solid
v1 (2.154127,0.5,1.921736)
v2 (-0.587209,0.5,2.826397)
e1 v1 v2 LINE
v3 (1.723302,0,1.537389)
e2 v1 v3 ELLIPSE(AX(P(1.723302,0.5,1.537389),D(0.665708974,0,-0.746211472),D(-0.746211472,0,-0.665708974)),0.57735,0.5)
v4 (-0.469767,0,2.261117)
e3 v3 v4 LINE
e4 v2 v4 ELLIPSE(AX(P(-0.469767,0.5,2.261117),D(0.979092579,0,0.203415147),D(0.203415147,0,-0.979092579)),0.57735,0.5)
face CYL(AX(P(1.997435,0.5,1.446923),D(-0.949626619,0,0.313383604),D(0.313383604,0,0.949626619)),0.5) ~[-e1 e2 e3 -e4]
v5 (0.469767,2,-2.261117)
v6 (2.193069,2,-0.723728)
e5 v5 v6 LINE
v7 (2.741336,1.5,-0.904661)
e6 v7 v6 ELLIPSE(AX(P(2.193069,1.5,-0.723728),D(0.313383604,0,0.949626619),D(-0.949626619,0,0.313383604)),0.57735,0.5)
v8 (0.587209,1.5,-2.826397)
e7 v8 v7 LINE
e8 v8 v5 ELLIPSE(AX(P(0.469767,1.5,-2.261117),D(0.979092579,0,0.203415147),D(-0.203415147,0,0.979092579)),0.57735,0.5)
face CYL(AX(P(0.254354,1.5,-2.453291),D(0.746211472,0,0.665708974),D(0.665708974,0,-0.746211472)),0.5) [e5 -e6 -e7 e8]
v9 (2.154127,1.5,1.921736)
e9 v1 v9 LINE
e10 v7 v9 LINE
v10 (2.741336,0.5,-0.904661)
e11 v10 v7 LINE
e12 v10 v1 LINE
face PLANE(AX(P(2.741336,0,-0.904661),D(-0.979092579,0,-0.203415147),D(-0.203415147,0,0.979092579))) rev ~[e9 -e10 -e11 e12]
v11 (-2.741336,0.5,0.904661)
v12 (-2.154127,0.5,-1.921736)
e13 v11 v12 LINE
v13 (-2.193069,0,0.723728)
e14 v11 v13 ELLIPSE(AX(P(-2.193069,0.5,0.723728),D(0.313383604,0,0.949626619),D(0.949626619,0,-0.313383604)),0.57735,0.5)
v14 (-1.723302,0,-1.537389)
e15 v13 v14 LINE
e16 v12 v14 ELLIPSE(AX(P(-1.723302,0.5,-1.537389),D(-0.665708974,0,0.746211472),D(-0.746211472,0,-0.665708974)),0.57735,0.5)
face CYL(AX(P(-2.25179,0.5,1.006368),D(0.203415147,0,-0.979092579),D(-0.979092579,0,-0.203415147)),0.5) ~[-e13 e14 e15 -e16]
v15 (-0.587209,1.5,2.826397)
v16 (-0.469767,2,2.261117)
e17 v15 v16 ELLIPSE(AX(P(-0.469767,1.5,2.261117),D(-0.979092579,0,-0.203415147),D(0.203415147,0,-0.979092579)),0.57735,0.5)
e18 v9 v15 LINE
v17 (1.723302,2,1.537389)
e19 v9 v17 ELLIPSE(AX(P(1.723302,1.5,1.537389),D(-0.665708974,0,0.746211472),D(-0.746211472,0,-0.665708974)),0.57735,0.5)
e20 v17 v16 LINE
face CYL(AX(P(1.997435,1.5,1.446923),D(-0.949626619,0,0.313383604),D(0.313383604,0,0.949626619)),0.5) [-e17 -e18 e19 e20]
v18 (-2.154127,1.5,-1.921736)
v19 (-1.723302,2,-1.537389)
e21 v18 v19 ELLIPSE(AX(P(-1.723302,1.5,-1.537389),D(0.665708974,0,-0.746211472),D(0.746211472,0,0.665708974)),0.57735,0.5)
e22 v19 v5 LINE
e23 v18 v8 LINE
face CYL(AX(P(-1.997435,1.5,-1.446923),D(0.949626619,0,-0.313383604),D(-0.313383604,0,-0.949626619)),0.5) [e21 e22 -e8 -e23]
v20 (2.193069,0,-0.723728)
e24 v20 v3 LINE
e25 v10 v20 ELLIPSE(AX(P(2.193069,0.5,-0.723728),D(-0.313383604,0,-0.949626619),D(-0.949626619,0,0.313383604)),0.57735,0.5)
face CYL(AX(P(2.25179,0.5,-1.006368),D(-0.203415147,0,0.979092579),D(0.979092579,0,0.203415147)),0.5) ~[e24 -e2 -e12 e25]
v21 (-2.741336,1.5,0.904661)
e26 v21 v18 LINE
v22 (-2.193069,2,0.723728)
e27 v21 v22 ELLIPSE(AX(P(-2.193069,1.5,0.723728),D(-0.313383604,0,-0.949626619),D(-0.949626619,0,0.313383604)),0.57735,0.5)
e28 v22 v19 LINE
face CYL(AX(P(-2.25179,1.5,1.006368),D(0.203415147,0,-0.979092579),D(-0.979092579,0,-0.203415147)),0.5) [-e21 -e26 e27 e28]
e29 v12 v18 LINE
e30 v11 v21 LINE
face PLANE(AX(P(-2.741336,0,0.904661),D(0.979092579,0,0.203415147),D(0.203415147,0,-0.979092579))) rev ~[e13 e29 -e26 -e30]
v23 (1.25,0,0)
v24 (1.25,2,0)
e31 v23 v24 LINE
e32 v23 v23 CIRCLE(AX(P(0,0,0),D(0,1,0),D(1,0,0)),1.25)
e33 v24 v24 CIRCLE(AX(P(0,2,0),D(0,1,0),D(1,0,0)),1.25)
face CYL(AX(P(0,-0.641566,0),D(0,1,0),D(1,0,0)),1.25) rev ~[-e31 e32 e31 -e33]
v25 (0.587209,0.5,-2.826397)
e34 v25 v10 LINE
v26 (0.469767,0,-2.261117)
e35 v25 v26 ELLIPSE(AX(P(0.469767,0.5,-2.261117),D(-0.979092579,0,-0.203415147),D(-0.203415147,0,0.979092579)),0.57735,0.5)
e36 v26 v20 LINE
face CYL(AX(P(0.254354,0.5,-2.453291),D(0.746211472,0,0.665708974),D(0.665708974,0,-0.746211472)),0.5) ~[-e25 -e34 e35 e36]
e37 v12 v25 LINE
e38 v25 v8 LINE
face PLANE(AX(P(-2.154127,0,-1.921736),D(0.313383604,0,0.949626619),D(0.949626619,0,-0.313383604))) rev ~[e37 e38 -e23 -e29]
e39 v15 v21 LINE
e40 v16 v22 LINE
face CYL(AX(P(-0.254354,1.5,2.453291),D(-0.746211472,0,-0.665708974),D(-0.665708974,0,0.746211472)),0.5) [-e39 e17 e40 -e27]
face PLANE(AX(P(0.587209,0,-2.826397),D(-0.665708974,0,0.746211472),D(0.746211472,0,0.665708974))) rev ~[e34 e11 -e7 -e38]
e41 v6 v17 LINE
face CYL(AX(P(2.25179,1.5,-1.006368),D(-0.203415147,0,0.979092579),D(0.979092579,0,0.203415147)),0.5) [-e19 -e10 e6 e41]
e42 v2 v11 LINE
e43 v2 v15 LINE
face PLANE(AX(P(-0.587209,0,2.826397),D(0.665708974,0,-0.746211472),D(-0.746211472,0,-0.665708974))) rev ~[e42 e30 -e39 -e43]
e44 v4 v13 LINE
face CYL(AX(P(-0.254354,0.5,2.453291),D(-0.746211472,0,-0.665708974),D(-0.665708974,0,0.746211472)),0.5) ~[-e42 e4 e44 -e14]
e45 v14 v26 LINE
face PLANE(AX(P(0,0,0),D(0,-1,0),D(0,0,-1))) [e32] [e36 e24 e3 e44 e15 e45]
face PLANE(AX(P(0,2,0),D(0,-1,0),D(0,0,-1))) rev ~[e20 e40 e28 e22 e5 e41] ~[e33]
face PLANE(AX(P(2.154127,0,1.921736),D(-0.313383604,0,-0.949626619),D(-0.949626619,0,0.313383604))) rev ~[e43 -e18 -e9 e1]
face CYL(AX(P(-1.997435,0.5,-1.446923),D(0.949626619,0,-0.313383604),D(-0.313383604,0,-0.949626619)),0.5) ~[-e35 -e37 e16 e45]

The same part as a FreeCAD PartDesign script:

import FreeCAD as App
import Part
import Sketcher
from FreeCAD import Vector


def edges_at(feature, points):
    """Names of the edges that pass closest to the given points."""
    edges = feature.Shape.Edges
    near = lambda p: min(range(len(edges)), key=lambda i: edges[i].distToShape(Part.Vertex(*p))[0])
    return sorted({f"Edge{near(p) + 1}" for p in points})


def add_polygon(sketch, points):
    """Adds a closed chain of lines whose ends are joined by coincident constraints."""
    first, n = sketch.GeometryCount, len(points)
    for a, b in zip(points, points[1:] + points[:1]):
        sketch.addGeometry(Part.LineSegment(App.Vector(*a, 0), App.Vector(*b, 0)), False)
    for i in range(n):
        sketch.addConstraint(Sketcher.Constraint("Coincident", first + i, 2, first + (i + 1) % n, 1))

doc = App.newDocument("Part")
params = doc.addObject("Spreadsheet::Sheet", "Params")
for row, (alias, value) in enumerate([
    ("sketch2_height", "2 mm"),
    ("fillet_radius", "0.5 mm"),
    ("sketch3_diameter", "2.5 mm"),
], start=1):
    params.set(f"A{row}", alias)
    params.set(f"B{row}", "=" + value)
    params.setAlias(f"B{row}", alias)

body = doc.addObject("PartDesign::Body", "Body")

sketch1 = body.newObject("Sketcher::SketchObject", "Sketch")
sketch1.AttachmentSupport = (doc.getObject("XZ_Plane"), [""])
sketch1.MapMode = "FlatFace"
add_polygon(sketch1, [(-0.6, 2.8), (-2.7, 0.9), (-2.2, -1.9), (0.6, -2.8), (2.7, -0.9), (2.2, 1.9)])
sketch1.addConstraint([
    Sketcher.Constraint("Symmetric", 0, 2, 3, 2, -1, 1),
    Sketcher.Constraint("Symmetric", 1, 2, 4, 2, -1, 1),
    Sketcher.Constraint("Symmetric", 2, 2, 5, 2, -1, 1),
    Sketcher.Constraint("Equal", 0, 1),
    Sketcher.Constraint("Equal", 1, 2),
    Sketcher.Constraint("Distance", 0, 2.886751),
    Sketcher.Constraint("DistanceY", -1, 1, 0, 2, 0.904661),
    Sketcher.Constraint("DistanceX", -1, 1, 2, 2, 0.587209),
    Sketcher.Constraint("DistanceX", 0, 2, 1, 2, 0.587209),
])

sketch2 = body.newObject("Sketcher::SketchObject", "Sketch001")
sketch2.AttachmentSupport = (doc.getObject("XY_Plane"), [""])
sketch2.MapMode = "FlatFace"
sketch2.addGeometry(Part.LineSegment(Vector(0, 0, 0), Vector(0, 2, 0)), False)
sketch2.addConstraint([
    Sketcher.Constraint("Vertical", 0),
    Sketcher.Constraint("Coincident", 0, 1, -1, 1),
    Sketcher.Constraint("DistanceY", 0, 1, 0, 2, 2.0),
])
sketch2.setExpression("Constraints[2]", "Params.sketch2_height")
doc.recompute()

additivepipe = body.newObject("PartDesign::AdditivePipe", "AdditivePipe")
additivepipe.Profile = sketch1
additivepipe.Spine = (sketch2, ["Edge1"])
doc.recompute()

fillet = body.newObject("PartDesign::Fillet", "Fillet")
fillet.Base = (additivepipe, edges_at(additivepipe, [
    (-2.448, 0, -0.509),
    (-1.664, 0, 1.866),
    (0.783, 0, 2.374),
    (2.448, 0, 0.509),
    (1.664, 0, -1.866),
    (-0.783, 0, -2.374),
    (-1.664, 2, 1.866),
    (0.783, 2, 2.374),
    (2.448, 2, 0.509),
    (1.664, 2, -1.866),
    (-0.783, 2, -2.374),
    (-2.448, 2, -0.509),
]))
fillet.setExpression("Radius", "Params.fillet_radius")

sketch3 = body.newObject("Sketcher::SketchObject", "Sketch002")
sketch3.AttachmentSupport = (doc.getObject("XZ_Plane"), [""])
sketch3.MapMode = "FlatFace"
sketch3.addGeometry(Part.Circle(Vector(0, 0, 0), Vector(0, 0, 1), 1.2), False)
sketch3.addConstraint([
    Sketcher.Constraint("Coincident", 0, 3, -1, 1),
    Sketcher.Constraint("Diameter", 0, 2.5),
])
sketch3.setExpression("Constraints[1]", "Params.sketch3_diameter")

sketch4 = body.newObject("Sketcher::SketchObject", "Sketch003")
sketch4.AttachmentSupport = (doc.getObject("XY_Plane"), [""])
sketch4.MapMode = "FlatFace"
sketch4.addGeometry(Part.LineSegment(Vector(0, -0.6, 0), Vector(0, 2.5, 0)), False)
sketch4.addConstraint([
    Sketcher.Constraint("Vertical", 0),
    Sketcher.Constraint("PointOnObject", 0, 1, -2),
    Sketcher.Constraint("DistanceY", 0, 1, 0, 2, 3.15503),
    Sketcher.Constraint("DistanceY", 0, 1, -1, 1, 0.641566),
])
doc.recompute()

subtractivepipe = body.newObject("PartDesign::SubtractivePipe", "SubtractivePipe")
subtractivepipe.Profile = sketch3
subtractivepipe.Spine = (sketch4, ["Edge1"])

doc.recompute()
